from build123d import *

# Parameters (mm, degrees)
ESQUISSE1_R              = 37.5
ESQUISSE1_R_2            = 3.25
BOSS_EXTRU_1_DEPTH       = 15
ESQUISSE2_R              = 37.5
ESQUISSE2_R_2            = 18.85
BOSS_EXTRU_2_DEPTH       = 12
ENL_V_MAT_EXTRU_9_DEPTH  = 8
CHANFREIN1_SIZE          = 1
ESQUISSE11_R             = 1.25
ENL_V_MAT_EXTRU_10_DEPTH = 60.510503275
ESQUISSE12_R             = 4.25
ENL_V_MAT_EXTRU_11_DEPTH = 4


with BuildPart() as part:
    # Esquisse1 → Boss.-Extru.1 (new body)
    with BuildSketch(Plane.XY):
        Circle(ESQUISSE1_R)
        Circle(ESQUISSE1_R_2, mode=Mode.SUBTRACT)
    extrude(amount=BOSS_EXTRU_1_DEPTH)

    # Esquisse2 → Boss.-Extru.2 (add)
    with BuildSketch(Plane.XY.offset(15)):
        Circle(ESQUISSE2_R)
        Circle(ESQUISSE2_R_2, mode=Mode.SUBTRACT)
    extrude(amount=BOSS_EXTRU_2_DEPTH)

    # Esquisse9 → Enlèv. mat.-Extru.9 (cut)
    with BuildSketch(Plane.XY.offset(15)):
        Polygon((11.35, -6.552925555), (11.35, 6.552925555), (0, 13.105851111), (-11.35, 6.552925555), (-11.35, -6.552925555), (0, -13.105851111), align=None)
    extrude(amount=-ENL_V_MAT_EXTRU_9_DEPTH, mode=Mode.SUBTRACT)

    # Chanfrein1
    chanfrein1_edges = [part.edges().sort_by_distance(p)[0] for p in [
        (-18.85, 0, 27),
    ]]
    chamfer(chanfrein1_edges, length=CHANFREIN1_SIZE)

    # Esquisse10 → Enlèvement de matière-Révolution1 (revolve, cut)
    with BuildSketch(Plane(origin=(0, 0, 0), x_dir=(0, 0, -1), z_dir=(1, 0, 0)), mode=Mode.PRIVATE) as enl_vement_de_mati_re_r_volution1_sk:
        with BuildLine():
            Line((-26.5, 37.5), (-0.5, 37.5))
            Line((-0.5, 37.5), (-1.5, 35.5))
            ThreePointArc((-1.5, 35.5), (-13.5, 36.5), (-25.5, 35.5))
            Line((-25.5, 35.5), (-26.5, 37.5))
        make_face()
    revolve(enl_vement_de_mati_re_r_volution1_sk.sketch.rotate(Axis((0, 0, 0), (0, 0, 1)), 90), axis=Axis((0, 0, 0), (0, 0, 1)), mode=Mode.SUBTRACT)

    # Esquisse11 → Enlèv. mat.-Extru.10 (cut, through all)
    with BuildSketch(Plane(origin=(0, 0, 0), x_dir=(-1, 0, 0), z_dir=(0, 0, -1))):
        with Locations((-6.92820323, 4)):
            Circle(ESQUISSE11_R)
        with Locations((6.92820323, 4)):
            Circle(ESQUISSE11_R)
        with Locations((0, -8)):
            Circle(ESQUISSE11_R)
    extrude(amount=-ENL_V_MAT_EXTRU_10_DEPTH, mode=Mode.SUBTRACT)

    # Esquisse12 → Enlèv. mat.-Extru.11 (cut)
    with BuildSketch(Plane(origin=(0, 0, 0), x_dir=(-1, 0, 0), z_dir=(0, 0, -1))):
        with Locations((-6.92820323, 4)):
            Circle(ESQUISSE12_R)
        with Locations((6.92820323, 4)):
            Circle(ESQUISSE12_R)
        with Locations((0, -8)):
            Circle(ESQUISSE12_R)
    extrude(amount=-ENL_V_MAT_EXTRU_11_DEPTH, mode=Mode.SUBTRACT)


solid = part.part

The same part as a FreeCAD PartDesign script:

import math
import FreeCAD as App
import Part
import Sketcher
Q = App.Units.Quantity


def edges_at(feature, points):
    """Names of the edges that pass closest to the given points."""
    edges = feature.Shape.Edges
    near = lambda p: min(range(len(edges)), key=lambda i: edges[i].distToShape(Part.Vertex(*p))[0])
    return sorted({f"Edge{near(p) + 1}" for p in points})

doc = App.newDocument("Part")
body = doc.addObject("PartDesign::Body", "Body")

sketch1 = doc.addObject("Sketcher::SketchObject", "Sketch")
body.addObject(sketch1)
sketch1.AttachmentSupport = (doc.XY_Plane, [""])
sketch1.MapMode = "FlatFace"
sketch1.addGeometry([
    Part.Circle(App.Vector(0, 0, 0), App.Vector(0, 0, 1), 37.5),
    Part.Circle(App.Vector(0, 0, 0), App.Vector(0, 0, 1), 3.25),
], False)
sketch1.addConstraint([
    Sketcher.Constraint("Coincident", 0, 3, -1, 1),
    Sketcher.Constraint("Coincident", 1, 3, -1, 1),
    Sketcher.Constraint("Diameter", 0, 75.0),
    Sketcher.Constraint("Diameter", 1, 6.5),
])
pad1 = doc.addObject("PartDesign::Pad", "Pad")
body.addObject(pad1)
pad1.Profile = sketch1
pad1.Length = 15

sketch2 = doc.addObject("Sketcher::SketchObject", "Sketch001")
body.addObject(sketch2)
sketch2.AttachmentSupport = (doc.XY_Plane, [""])
sketch2.MapMode = "FlatFace"
sketch2.AttachmentOffset = App.Placement(App.Vector(0, 0, 15), App.Rotation())
sketch2.addGeometry([
    Part.Circle(App.Vector(0, 0, 0), App.Vector(0, 0, 1), 37.5),
    Part.Circle(App.Vector(0, 0, 0), App.Vector(0, 0, 1), 18.85),
], False)
sketch2.addConstraint([
    Sketcher.Constraint("Coincident", 0, 3, -1, 1),
    Sketcher.Constraint("Coincident", 1, 3, -1, 1),
    Sketcher.Constraint("Diameter", 0, 75.0),
    Sketcher.Constraint("Diameter", 1, 37.7),
])
pad2 = doc.addObject("PartDesign::Pad", "Pad001")
body.addObject(pad2)
pad2.Profile = sketch2
pad2.Length = 12

sketch3 = doc.addObject("Sketcher::SketchObject", "Sketch002")
body.addObject(sketch3)
sketch3.AttachmentSupport = (doc.XY_Plane, [""])
sketch3.MapMode = "FlatFace"
sketch3.AttachmentOffset = App.Placement(App.Vector(0, 0, 15), App.Rotation())
sketch3.addGeometry([
    Part.LineSegment(App.Vector(11.35, -6.552926, 0), App.Vector(11.35, 6.552926, 0)),
    Part.LineSegment(App.Vector(11.35, 6.552926, 0), App.Vector(0, 13.105851, 0)),
    Part.LineSegment(App.Vector(0, 13.105851, 0), App.Vector(-11.35, 6.552926, 0)),
    Part.LineSegment(App.Vector(-11.35, 6.552926, 0), App.Vector(-11.35, -6.552926, 0)),
    Part.LineSegment(App.Vector(-11.35, -6.552926, 0), App.Vector(0, -13.105851, 0)),
    Part.LineSegment(App.Vector(0, -13.105851, 0), App.Vector(11.35, -6.552926, 0)),
], False)
sketch3.addConstraint([
    Sketcher.Constraint("Coincident", 0, 2, 1, 1),
    Sketcher.Constraint("Coincident", 1, 2, 2, 1),
    Sketcher.Constraint("Coincident", 2, 2, 3, 1),
    Sketcher.Constraint("Coincident", 3, 2, 4, 1),
    Sketcher.Constraint("Coincident", 4, 2, 5, 1),
    Sketcher.Constraint("Coincident", 5, 2, 0, 1),
    Sketcher.Constraint("Vertical", 0),
    Sketcher.Constraint("Vertical", 3),
    Sketcher.Constraint("Symmetric", 0, 2, 3, 2, -1, 1),
    Sketcher.Constraint("Symmetric", 1, 2, 4, 2, -1, 1),
    Sketcher.Constraint("PointOnObject", 1, 2, -2),
    Sketcher.Constraint("Parallel", 2, 5),
    Sketcher.Constraint("Horizontal", 0, 2, 2, 2),
    Sketcher.Constraint("Angle", 1, Q("150 deg")),
    Sketcher.Constraint("DistanceX", 2, 2, 0, 2, 22.7),
    Sketcher.Constraint("DistanceY", 0, 1, 0, 2, 13.105851),
])
pocket1 = doc.addObject("PartDesign::Pocket", "Pocket")
body.addObject(pocket1)
pocket1.Profile = sketch3
pocket1.Length = 8
doc.recompute()

chamfer = doc.addObject("PartDesign::Chamfer", "Chamfer")
body.addObject(chamfer)
chamfer.Base = (pocket1, edges_at(pocket1, [(-18.85, 0, 27)]))
chamfer.Size = 1

sketch4 = doc.addObject("Sketcher::SketchObject", "Sketch003")
body.addObject(sketch4)
sketch4.AttachmentSupport = (doc.YZ_Plane, [""])
sketch4.MapMode = "FlatFace"
sketch4.addGeometry([
    Part.LineSegment(App.Vector(37.5, 0.5, 0), App.Vector(37.5, 26.5, 0)),
    Part.LineSegment(App.Vector(37.5, 26.5, 0), App.Vector(35.5, 25.5, 0)),
    Part.ArcOfCircle(Part.Circle(App.Vector(-36, 13.5, 0), App.Vector(0, 0, 1), 72.5), math.radians(-9.527283), math.radians(9.527283)),
    Part.LineSegment(App.Vector(35.5, 1.5, 0), App.Vector(37.5, 0.5, 0)),
], False)
sketch4.addConstraint([
    Sketcher.Constraint("Coincident", 0, 2, 1, 1),
    Sketcher.Constraint("Coincident", 1, 2, 2, 2),
    Sketcher.Constraint("Coincident", 2, 1, 3, 1),
    Sketcher.Constraint("Coincident", 3, 2, 0, 1),
    Sketcher.Constraint("Vertical", 0),
    Sketcher.Constraint("Vertical", 1, 2, 2, 1),
    Sketcher.Constraint("Equal", 1, 3),
    Sketcher.Constraint("Radius", 2, 72.5),
    Sketcher.Constraint("DistanceY", 0, 1, 0, 2, 26.0),
    Sketcher.Constraint("DistanceX", 2, 3, -1, 1, 36.0),
    Sketcher.Constraint("DistanceX", 1, 2, 0, 2, 2.0),
    Sketcher.Constraint("DistanceY", 1, 2, 0, 2, 1.0),
    Sketcher.Constraint("DistanceY", -1, 1, 2, 3, 13.5),
])
groove = doc.addObject("PartDesign::Groove", "Groove")
body.addObject(groove)
groove.Profile = sketch4
groove.ReferenceAxis = (sketch4, ["V_Axis"])
groove.Angle = 360

sketch5 = doc.addObject("Sketcher::SketchObject", "Sketch004")
body.addObject(sketch5)
sketch5.AttachmentSupport = (doc.XY_Plane, [""])
sketch5.MapMode = "FlatFace"
sketch5.addGeometry([
    Part.Circle(App.Vector(6.928203, 4, 0), App.Vector(0, 0, 1), 1.25),
    Part.Circle(App.Vector(-6.928203, 4, 0), App.Vector(0, 0, 1), 1.25),
    Part.Circle(App.Vector(0, -8, 0), App.Vector(0, 0, 1), 1.25),
], False)
sketch5.addConstraint([
    Sketcher.Constraint("Equal", 0, 1),
    Sketcher.Constraint("Equal", 1, 2),
    Sketcher.Constraint("Symmetric", 0, 3, 1, 3, -2),
    Sketcher.Constraint("PointOnObject", 2, 3, -2),
    Sketcher.Constraint("Diameter", 0, 2.5),
    Sketcher.Constraint("DistanceY", -1, 1, 0, 3, 4.0),
    Sketcher.Constraint("DistanceY", 2, 3, -1, 1, 8.0),
    Sketcher.Constraint("DistanceX", -1, 1, 0, 3, 6.928203),
])
pocket2 = doc.addObject("PartDesign::Pocket", "Pocket001")
body.addObject(pocket2)
pocket2.Profile = sketch5
pocket2.Type = "ThroughAll"
pocket2.Reversed = True

sketch6 = doc.addObject("Sketcher::SketchObject", "Sketch005")
body.addObject(sketch6)
sketch6.AttachmentSupport = (doc.XY_Plane, [""])
sketch6.MapMode = "FlatFace"
sketch6.addGeometry([
    Part.Circle(App.Vector(6.928203, 4, 0), App.Vector(0, 0, 1), 4.25),
    Part.Circle(App.Vector(-6.928203, 4, 0), App.Vector(0, 0, 1), 4.25),
    Part.Circle(App.Vector(0, -8, 0), App.Vector(0, 0, 1), 4.25),
], False)
sketch6.addConstraint([
    Sketcher.Constraint("Equal", 0, 1),
    Sketcher.Constraint("Equal", 1, 2),
    Sketcher.Constraint("Symmetric", 0, 3, 1, 3, -2),
    Sketcher.Constraint("PointOnObject", 2, 3, -2),
    Sketcher.Constraint("Diameter", 0, 8.5),
    Sketcher.Constraint("DistanceY", -1, 1, 0, 3, 4.0),
    Sketcher.Constraint("DistanceY", 2, 3, -1, 1, 8.0),
    Sketcher.Constraint("DistanceX", -1, 1, 0, 3, 6.928203),
])
pocket3 = doc.addObject("PartDesign::Pocket", "Pocket002")
body.addObject(pocket3)
pocket3.Profile = sketch6
pocket3.Length = 4
pocket3.Reversed = True

doc.recompute()
